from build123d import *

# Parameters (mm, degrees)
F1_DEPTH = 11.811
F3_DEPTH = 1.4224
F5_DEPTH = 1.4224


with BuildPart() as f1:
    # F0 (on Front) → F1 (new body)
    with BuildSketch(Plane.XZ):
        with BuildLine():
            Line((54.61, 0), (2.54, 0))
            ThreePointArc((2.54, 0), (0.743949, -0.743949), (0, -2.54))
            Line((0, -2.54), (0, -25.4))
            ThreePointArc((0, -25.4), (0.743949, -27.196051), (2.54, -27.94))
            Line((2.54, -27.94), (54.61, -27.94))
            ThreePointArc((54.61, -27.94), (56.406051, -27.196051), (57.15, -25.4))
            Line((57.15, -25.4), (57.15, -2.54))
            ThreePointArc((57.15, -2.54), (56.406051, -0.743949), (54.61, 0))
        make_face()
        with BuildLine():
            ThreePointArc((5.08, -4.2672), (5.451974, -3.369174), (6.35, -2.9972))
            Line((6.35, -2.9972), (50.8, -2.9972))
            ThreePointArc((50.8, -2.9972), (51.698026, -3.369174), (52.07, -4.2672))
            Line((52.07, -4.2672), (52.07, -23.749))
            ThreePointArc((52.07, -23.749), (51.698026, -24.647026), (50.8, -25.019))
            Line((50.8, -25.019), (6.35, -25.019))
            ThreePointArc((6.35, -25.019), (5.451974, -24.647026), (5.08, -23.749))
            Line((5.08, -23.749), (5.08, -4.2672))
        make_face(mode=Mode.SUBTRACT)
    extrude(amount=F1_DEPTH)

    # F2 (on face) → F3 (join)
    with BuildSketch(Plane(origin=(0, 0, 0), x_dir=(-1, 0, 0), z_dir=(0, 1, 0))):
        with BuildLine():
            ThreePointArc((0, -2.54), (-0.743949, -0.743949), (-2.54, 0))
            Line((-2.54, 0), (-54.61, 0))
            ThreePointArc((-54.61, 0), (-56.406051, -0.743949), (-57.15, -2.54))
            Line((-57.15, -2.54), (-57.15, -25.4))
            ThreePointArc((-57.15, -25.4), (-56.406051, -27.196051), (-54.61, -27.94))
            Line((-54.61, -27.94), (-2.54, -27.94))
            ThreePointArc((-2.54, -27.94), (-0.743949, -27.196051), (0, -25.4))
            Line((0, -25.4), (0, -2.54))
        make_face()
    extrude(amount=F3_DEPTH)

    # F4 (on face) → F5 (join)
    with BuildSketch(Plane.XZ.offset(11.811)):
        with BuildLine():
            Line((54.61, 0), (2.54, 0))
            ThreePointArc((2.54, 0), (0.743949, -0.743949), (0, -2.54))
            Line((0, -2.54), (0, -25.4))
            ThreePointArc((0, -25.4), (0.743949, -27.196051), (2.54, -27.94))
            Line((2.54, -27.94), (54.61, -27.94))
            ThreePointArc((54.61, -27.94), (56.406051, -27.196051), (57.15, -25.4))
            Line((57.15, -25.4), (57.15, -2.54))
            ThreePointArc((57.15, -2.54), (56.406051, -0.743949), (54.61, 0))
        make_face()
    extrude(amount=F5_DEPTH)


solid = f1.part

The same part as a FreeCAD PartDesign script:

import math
import FreeCAD as App
import Part
import Sketcher
from FreeCAD import Vector
Q = App.Units.Quantity

doc = App.newDocument("Part")
body = doc.addObject("PartDesign::Body", "Body")

sketch1 = body.newObject("Sketcher::SketchObject", "Sketch")
sketch1.AttachmentSupport = (doc.getObject("XZ_Plane"), [""])
sketch1.MapMode = "FlatFace"
sketch1.addGeometry([
    Part.LineSegment(Vector(54.6, 0, 0), Vector(2.5, 0, 0)),
    Part.ArcOfCircle(Part.Circle(Vector(2.5, -2.5, 0), Vector(0, 0, 1), 2.5), math.radians(90), math.radians(180)),
    Part.LineSegment(Vector(0, -2.5, 0), Vector(0, -25.4, 0)),
    Part.ArcOfCircle(Part.Circle(Vector(2.5, -25.4, 0), Vector(0, 0, 1), 2.5), math.radians(-180), math.radians(-90)),
    Part.LineSegment(Vector(2.5, -27.9, 0), Vector(54.6, -27.9, 0)),
    Part.ArcOfCircle(Part.Circle(Vector(54.6, -25.4, 0), Vector(0, 0, 1), 2.5), math.radians(-90), math.radians(0)),
    Part.LineSegment(Vector(57.1, -25.4, 0), Vector(57.1, -2.5, 0)),
    Part.ArcOfCircle(Part.Circle(Vector(54.6, -2.5, 0), Vector(0, 0, 1), 2.5), math.radians(0), math.radians(90)),
    Part.LineSegment(Vector(5.1, -23.7, 0), Vector(5.1, -4.3, 0)),
    Part.ArcOfCircle(Part.Circle(Vector(6.3, -4.3, 0), Vector(0, 0, 1), 1.3), math.radians(90), math.radians(180)),
    Part.LineSegment(Vector(6.3, -3, 0), Vector(50.8, -3, 0)),
    Part.ArcOfCircle(Part.Circle(Vector(50.8, -4.3, 0), Vector(0, 0, 1), 1.3), math.radians(0), math.radians(90)),
    Part.LineSegment(Vector(52.1, -4.3, 0), Vector(52.1, -23.7, 0)),
    Part.ArcOfCircle(Part.Circle(Vector(50.8, -23.7, 0), Vector(0, 0, 1), 1.3), math.radians(-90), math.radians(0)),
    Part.LineSegment(Vector(50.8, -25, 0), Vector(6.3, -25, 0)),
    Part.ArcOfCircle(Part.Circle(Vector(6.3, -23.7, 0), Vector(0, 0, 1), 1.3), math.radians(180), math.radians(270)),
], False)
sketch1.addConstraint([
    Sketcher.Constraint("Tangent", 0, 2, 1, 1),
    Sketcher.Constraint("Tangent", 1, 2, 2, 1),
    Sketcher.Constraint("Tangent", 2, 2, 3, 1),
    Sketcher.Constraint("Tangent", 3, 2, 4, 1),
    Sketcher.Constraint("Tangent", 4, 2, 5, 1),
    Sketcher.Constraint("Tangent", 5, 2, 6, 1),
    Sketcher.Constraint("Tangent", 6, 2, 7, 1),
    Sketcher.Constraint("Tangent", 7, 2, 0, 1),
    Sketcher.Constraint("Tangent", 8, 2, 9, 2),
    Sketcher.Constraint("Tangent", 9, 1, 10, 1),
    Sketcher.Constraint("Tangent", 10, 2, 11, 2),
    Sketcher.Constraint("Tangent", 11, 1, 12, 1),
    Sketcher.Constraint("Tangent", 12, 2, 13, 2),
    Sketcher.Constraint("Tangent", 13, 1, 14, 1),
    Sketcher.Constraint("Tangent", 14, 2, 15, 2),
    Sketcher.Constraint("Tangent", 15, 1, 8, 1),
    Sketcher.Constraint("Horizontal", 0),
    Sketcher.Constraint("Vertical", 2),
    Sketcher.Constraint("Horizontal", 4),
    Sketcher.Constraint("Vertical", 6),
    Sketcher.Constraint("Vertical", 8),
    Sketcher.Constraint("Horizontal", 10),
    Sketcher.Constraint("Vertical", 12),
    Sketcher.Constraint("Horizontal", 14),
    Sketcher.Constraint("Equal", 1, 3),
    Sketcher.Constraint("Equal", 3, 5),
    Sketcher.Constraint("Equal", 5, 7),
    Sketcher.Constraint("Equal", 9, 11),
    Sketcher.Constraint("Equal", 11, 13),
    Sketcher.Constraint("Equal", 13, 15),
    Sketcher.Constraint("PointOnObject", 0, 2, -1),
    Sketcher.Constraint("PointOnObject", 1, 2, -2),
    Sketcher.Constraint("Radius", 1, Q("0.1 in")),
    Sketcher.Constraint("Radius", 9, Q("0.0499999 in")),
    Sketcher.Constraint("DistanceY", 2, 2, 2, 1, Q("0.9 in")),
    Sketcher.Constraint("DistanceX", -1, 1, 11, 3, Q("2.0000001 in")),
    Sketcher.Constraint("DistanceX", 0, 2, 0, 1, Q("2.05 in")),
    Sketcher.Constraint("DistanceX", 10, 1, 10, 2, Q("1.75 in")),
    Sketcher.Constraint("DistanceY", 8, 1, 8, 2, Q("0.767 in")),
    Sketcher.Constraint("DistanceY", 9, 3, -1, 1, Q("0.1679999 in")),
])
pad1 = body.newObject("PartDesign::Pad", "Pad")
pad1.Profile = sketch1
pad1.Length = Q("0.465 in")

sketch2 = body.newObject("Sketcher::SketchObject", "Sketch001")
sketch2.AttachmentSupport = (doc.getObject("XZ_Plane"), [""])
sketch2.MapMode = "FlatFace"
sketch2.addGeometry([
    Part.ArcOfCircle(Part.Circle(Vector(2.5, -2.5, 0), Vector(0, 0, 1), 2.5), math.radians(90), math.radians(180)),
    Part.LineSegment(Vector(2.5, 0, 0), Vector(54.6, 0, 0)),
    Part.ArcOfCircle(Part.Circle(Vector(54.6, -2.5, 0), Vector(0, 0, 1), 2.5), math.radians(0), math.radians(90)),
    Part.LineSegment(Vector(57.1, -2.5, 0), Vector(57.1, -25.4, 0)),
    Part.ArcOfCircle(Part.Circle(Vector(54.6, -25.4, 0), Vector(0, 0, 1), 2.5), math.radians(-90), math.radians(0)),
    Part.LineSegment(Vector(54.6, -27.9, 0), Vector(2.5, -27.9, 0)),
    Part.ArcOfCircle(Part.Circle(Vector(2.5, -25.4, 0), Vector(0, 0, 1), 2.5), math.radians(-180), math.radians(-90)),
    Part.LineSegment(Vector(0, -25.4, 0), Vector(0, -2.5, 0)),
], False)
sketch2.addConstraint([
    Sketcher.Constraint("Tangent", 0, 1, 1, 1),
    Sketcher.Constraint("Tangent", 1, 2, 2, 2),
    Sketcher.Constraint("Tangent", 2, 1, 3, 1),
    Sketcher.Constraint("Tangent", 3, 2, 4, 2),
    Sketcher.Constraint("Tangent", 4, 1, 5, 1),
    Sketcher.Constraint("Tangent", 5, 2, 6, 2),
    Sketcher.Constraint("Tangent", 6, 1, 7, 1),
    Sketcher.Constraint("Tangent", 7, 2, 0, 2),
    Sketcher.Constraint("Horizontal", 1),
    Sketcher.Constraint("Vertical", 3),
    Sketcher.Constraint("Horizontal", 5),
    Sketcher.Constraint("Vertical", 7),
    Sketcher.Constraint("Equal", 0, 2),
    Sketcher.Constraint("Equal", 2, 4),
    Sketcher.Constraint("Equal", 4, 6),
    Sketcher.Constraint("PointOnObject", 0, 1, -1),
    Sketcher.Constraint("PointOnObject", 6, 1, -2),
    Sketcher.Constraint("Radius", 0, Q("0.1 in")),
    Sketcher.Constraint("DistanceY", 3, 2, 3, 1, Q("0.9 in")),
    Sketcher.Constraint("DistanceX", 1, 1, 1, 2, Q("2.05 in")),
])
pad2 = body.newObject("PartDesign::Pad", "Pad001")
pad2.Profile = sketch2
pad2.Length = Q("0.056 in")
pad2.Reversed = True

sketch3 = body.newObject("Sketcher::SketchObject", "Sketch002")
sketch3.AttachmentSupport = (doc.getObject("XZ_Plane"), [""])
sketch3.MapMode = "FlatFace"
sketch3.AttachmentOffset = App.Placement(Vector(0, 0, 0.465 * 25.4), App.Rotation())
sketch3.addGeometry([
    Part.LineSegment(Vector(54.6, 0, 0), Vector(2.5, 0, 0)),
    Part.ArcOfCircle(Part.Circle(Vector(2.5, -2.5, 0), Vector(0, 0, 1), 2.5), math.radians(90), math.radians(180)),
    Part.LineSegment(Vector(0, -2.5, 0), Vector(0, -25.4, 0)),
    Part.ArcOfCircle(Part.Circle(Vector(2.5, -25.4, 0), Vector(0, 0, 1), 2.5), math.radians(-180), math.radians(-90)),
    Part.LineSegment(Vector(2.5, -27.9, 0), Vector(54.6, -27.9, 0)),
    Part.ArcOfCircle(Part.Circle(Vector(54.6, -25.4, 0), Vector(0, 0, 1), 2.5), math.radians(-90), math.radians(0)),
    Part.LineSegment(Vector(57.1, -25.4, 0), Vector(57.1, -2.5, 0)),
    Part.ArcOfCircle(Part.Circle(Vector(54.6, -2.5, 0), Vector(0, 0, 1), 2.5), math.radians(0), math.radians(90)),
], False)
sketch3.addConstraint([
    Sketcher.Constraint("Tangent", 0, 2, 1, 1),
    Sketcher.Constraint("Tangent", 1, 2, 2, 1),
    Sketcher.Constraint("Tangent", 2, 2, 3, 1),
    Sketcher.Constraint("Tangent", 3, 2, 4, 1),
    Sketcher.Constraint("Tangent", 4, 2, 5, 1),
    Sketcher.Constraint("Tangent", 5, 2, 6, 1),
    Sketcher.Constraint("Tangent", 6, 2, 7, 1),
    Sketcher.Constraint("Tangent", 7, 2, 0, 1),
    Sketcher.Constraint("Horizontal", 0),
    Sketcher.Constraint("Vertical", 2),
    Sketcher.Constraint("Horizontal", 4),
    Sketcher.Constraint("Vertical", 6),
    Sketcher.Constraint("Equal", 1, 3),
    Sketcher.Constraint("Equal", 3, 5),
    Sketcher.Constraint("Equal", 5, 7),
    Sketcher.Constraint("PointOnObject", 0, 2, -1),
    Sketcher.Constraint("PointOnObject", 1, 2, -2),
    Sketcher.Constraint("Radius", 1, Q("0.1 in")),
    Sketcher.Constraint("DistanceY", 2, 2, 2, 1, Q("0.9 in")),
    Sketcher.Constraint("DistanceX", 0, 2, 0, 1, Q("2.05 in")),
])
pad3 = body.newObject("PartDesign::Pad", "Pad002")
pad3.Profile = sketch3
pad3.Length = Q("0.056 in")

doc.recompute()
